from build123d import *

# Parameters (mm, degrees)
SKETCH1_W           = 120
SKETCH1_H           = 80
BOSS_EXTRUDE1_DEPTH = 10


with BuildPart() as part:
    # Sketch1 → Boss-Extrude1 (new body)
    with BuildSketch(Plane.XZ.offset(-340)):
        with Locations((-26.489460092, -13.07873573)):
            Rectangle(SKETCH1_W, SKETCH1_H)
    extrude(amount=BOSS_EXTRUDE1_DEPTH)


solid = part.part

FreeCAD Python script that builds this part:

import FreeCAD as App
import Part
import Sketcher

V = App.Vector
Q = App.Units.Quantity


def add_polygon(sketch, points):
    """Adds a closed chain of lines whose ends are joined by coincident constraints."""
    first, n = sketch.GeometryCount, len(points)
    for a, b in zip(points, points[1:] + points[:1]):
        sketch.addGeometry(Part.LineSegment(App.Vector(*a, 0), App.Vector(*b, 0)), False)
    for i in range(n):
        sketch.addConstraint(Sketcher.Constraint("Coincident", first + i, 2, first + (i + 1) % n, 1))

doc = App.newDocument("Part")
body = doc.addObject("PartDesign::Body", "Body")

# Sketch on XZ plane
sketch1 = body.newObject("Sketcher::SketchObject", "Sketch")
sketch1.AttachmentSupport = (doc.getObject("XZ_Plane"), [""])
sketch1.MapMode = "FlatFace"
sketch1.AttachmentOffset = App.Placement(V(0, 0, -340), App.Rotation())
add_polygon(sketch1, [(-86, 27), (-86, -53), (34, -53), (34, 27)])  # lines 0-3
sketch1.addConstraint(Sketcher.Constraint("Vertical", 0))
sketch1.addConstraint(Sketcher.Constraint("Horizontal", 1))
sketch1.addConstraint(Sketcher.Constraint("Vertical", 2))
sketch1.addConstraint(Sketcher.Constraint("Horizontal", 3))
sketch1.addConstraint(Sketcher.Constraint("DistanceX", 1, 1, 1, 2, Q("120 mm")))
sketch1.addConstraint(Sketcher.Constraint("DistanceY", 0, 2, 0, 1, Q("80 mm")))
sketch1.addConstraint(Sketcher.Constraint("DistanceX", 0, 2, -1, 1, Q("86.48946 mm")))
sketch1.addConstraint(Sketcher.Constraint("DistanceY", 0, 2, -1, 1, Q("53.078736 mm")))
pad1 = body.newObject("PartDesign::Pad", "Pad")
pad1.Profile = sketch1
pad1.Length = 10

doc.recompute()
